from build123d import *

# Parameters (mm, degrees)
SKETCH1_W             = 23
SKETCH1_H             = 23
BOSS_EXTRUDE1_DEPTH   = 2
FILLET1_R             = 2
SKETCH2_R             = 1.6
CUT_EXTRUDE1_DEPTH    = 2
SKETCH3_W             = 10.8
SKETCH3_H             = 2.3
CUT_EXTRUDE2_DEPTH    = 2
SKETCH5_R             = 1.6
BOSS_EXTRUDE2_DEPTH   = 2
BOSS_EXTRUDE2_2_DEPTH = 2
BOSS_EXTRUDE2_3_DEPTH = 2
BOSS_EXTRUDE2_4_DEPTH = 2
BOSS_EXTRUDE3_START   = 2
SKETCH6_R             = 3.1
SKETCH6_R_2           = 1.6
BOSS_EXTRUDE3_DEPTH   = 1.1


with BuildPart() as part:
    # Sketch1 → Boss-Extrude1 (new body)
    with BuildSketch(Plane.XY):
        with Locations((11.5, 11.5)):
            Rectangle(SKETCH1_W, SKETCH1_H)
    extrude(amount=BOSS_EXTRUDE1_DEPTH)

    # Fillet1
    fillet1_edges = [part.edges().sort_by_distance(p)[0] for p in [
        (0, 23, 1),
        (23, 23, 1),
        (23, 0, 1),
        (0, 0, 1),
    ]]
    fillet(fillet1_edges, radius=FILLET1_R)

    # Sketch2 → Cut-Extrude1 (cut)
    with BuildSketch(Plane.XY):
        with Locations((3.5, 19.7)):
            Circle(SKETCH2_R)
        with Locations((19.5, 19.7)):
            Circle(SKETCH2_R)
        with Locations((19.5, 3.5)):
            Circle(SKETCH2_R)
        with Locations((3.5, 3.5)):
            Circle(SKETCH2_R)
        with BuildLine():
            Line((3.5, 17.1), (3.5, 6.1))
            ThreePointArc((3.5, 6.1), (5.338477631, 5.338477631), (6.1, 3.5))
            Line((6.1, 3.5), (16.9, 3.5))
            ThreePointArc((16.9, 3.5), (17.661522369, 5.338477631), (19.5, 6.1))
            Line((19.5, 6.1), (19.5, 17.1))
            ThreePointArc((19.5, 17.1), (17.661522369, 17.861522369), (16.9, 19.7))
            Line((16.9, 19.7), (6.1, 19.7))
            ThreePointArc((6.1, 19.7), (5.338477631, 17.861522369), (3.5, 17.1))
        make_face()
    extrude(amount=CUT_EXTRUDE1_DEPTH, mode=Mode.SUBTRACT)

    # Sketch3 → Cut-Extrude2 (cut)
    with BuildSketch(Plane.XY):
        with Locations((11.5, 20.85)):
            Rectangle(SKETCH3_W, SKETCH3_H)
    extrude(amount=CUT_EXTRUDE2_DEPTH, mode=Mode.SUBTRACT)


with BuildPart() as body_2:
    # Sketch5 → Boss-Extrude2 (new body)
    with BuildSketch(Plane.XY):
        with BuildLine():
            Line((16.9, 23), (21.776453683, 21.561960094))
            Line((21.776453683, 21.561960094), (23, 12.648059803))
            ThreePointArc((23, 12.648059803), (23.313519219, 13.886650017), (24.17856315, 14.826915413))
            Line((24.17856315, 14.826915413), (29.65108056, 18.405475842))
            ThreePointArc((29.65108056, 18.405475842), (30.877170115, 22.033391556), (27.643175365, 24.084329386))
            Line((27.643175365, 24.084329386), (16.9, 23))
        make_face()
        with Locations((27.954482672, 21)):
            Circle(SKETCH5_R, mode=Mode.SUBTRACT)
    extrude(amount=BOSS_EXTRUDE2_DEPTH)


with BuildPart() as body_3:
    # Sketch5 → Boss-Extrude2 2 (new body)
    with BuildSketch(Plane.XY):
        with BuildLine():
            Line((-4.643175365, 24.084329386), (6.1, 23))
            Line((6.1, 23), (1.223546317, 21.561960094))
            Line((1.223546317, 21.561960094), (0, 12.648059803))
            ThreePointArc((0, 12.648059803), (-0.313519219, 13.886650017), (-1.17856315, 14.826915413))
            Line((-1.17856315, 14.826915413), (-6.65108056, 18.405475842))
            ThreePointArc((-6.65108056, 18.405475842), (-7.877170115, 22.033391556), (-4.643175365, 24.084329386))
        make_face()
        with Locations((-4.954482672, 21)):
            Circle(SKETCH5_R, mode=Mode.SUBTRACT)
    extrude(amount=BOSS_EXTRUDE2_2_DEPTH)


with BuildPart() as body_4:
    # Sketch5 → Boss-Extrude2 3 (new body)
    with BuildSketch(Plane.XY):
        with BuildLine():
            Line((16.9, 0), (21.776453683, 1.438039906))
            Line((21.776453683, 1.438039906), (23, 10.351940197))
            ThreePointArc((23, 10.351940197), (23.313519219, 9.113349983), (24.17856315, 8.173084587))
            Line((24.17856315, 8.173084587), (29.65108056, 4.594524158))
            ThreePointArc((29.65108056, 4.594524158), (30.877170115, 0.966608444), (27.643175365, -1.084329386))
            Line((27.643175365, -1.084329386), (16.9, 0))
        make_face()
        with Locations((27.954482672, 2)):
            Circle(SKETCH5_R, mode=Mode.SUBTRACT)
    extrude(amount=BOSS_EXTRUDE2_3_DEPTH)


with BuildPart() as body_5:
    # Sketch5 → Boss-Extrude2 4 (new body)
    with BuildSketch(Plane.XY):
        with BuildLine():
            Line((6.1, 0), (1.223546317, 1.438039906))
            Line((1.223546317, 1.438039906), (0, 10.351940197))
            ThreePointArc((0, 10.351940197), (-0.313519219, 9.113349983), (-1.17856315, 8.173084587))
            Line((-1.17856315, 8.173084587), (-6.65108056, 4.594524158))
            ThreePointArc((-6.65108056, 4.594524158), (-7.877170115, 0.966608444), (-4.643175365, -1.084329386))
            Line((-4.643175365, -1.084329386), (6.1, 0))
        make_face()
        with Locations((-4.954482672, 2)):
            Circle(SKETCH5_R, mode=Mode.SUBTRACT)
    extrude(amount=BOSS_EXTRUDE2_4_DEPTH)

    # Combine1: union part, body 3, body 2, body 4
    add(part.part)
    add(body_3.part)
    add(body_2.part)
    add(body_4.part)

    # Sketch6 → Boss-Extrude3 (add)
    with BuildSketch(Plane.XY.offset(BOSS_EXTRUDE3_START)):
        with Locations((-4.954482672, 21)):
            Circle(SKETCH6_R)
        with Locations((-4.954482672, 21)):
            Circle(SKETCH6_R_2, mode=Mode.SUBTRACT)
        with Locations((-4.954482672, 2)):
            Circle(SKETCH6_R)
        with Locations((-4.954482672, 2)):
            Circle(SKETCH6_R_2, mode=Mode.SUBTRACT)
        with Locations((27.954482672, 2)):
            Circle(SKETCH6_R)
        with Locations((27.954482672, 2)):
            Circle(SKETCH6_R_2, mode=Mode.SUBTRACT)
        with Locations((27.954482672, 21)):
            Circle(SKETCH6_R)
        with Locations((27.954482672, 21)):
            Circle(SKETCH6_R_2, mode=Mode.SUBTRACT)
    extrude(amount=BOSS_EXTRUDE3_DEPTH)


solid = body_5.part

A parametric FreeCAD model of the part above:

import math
import FreeCAD as App
import Part
import Sketcher


def edges_at(feature, points):
    """Names of the edges that pass closest to the given points."""
    edges = feature.Shape.Edges
    near = lambda p: min(range(len(edges)), key=lambda i: edges[i].distToShape(Part.Vertex(*p))[0])
    return sorted({f"Edge{near(p) + 1}" for p in points})

doc = App.newDocument("Part")
body = doc.addObject("PartDesign::Body", "Body")

# Sketch on XY plane
sketch1 = doc.addObject("Sketcher::SketchObject", "Sketch")
body.addObject(sketch1)
sketch1.AttachmentSupport = (doc.XY_Plane, [""])
sketch1.MapMode = "FlatFace"
sketch1.addGeometry([
    Part.LineSegment(App.Vector(0, 23, 0), App.Vector(0, 0, 0)),
    Part.LineSegment(App.Vector(0, 0, 0), App.Vector(23, 0, 0)),
    Part.LineSegment(App.Vector(23, 0, 0), App.Vector(23, 23, 0)),
    Part.LineSegment(App.Vector(23, 23, 0), App.Vector(0, 23, 0)),
], False)
sketch1.addConstraint([
    Sketcher.Constraint("Coincident", 0, 2, 1, 1),
    Sketcher.Constraint("Coincident", 1, 2, 2, 1),
    Sketcher.Constraint("Coincident", 2, 2, 3, 1),
    Sketcher.Constraint("Coincident", 3, 2, 0, 1),
    Sketcher.Constraint("Vertical", 0),
    Sketcher.Constraint("Horizontal", 1),
    Sketcher.Constraint("Vertical", 2),
    Sketcher.Constraint("Horizontal", 3),
    Sketcher.Constraint("Coincident", 0, 2, -1, 1),
    Sketcher.Constraint("Equal", 3, 0),
    Sketcher.Constraint("DistanceX", 1, 1, 1, 2, 23.0),
])
pad1 = doc.addObject("PartDesign::Pad", "Pad")
body.addObject(pad1)
pad1.Profile = sketch1
pad1.Length = 2
doc.recompute()

fillet = doc.addObject("PartDesign::Fillet", "Fillet")
body.addObject(fillet)
fillet.Base = (pad1, edges_at(pad1, [
    (0, 23, 1),
    (23, 23, 1),
    (23, 0, 1),
    (0, 0, 1),
]))
fillet.Radius = 2

# Sketch on XY plane
sketch2 = doc.addObject("Sketcher::SketchObject", "Sketch001")
body.addObject(sketch2)
sketch2.AttachmentSupport = (doc.XY_Plane, [""])
sketch2.MapMode = "FlatFace"
sketch2.addGeometry([
    Part.Circle(App.Vector(3.5, 19.7, 0), App.Vector(0, 0, 1), 1.6),  # 0
    Part.Circle(App.Vector(19.5, 19.7, 0), App.Vector(0, 0, 1), 1.6),  # 1
    Part.Circle(App.Vector(19.5, 3.5, 0), App.Vector(0, 0, 1), 1.6),  # 2
    Part.Circle(App.Vector(3.5, 3.5, 0), App.Vector(0, 0, 1), 1.6),  # 3
    Part.LineSegment(App.Vector(3.5, 17.1, 0), App.Vector(3.5, 6.1, 0)),  # 4
    Part.ArcOfCircle(Part.Circle(App.Vector(3.5, 3.5, 0), App.Vector(0, 0, 1), 2.6), math.radians(0), math.radians(90)),  # 5
    Part.LineSegment(App.Vector(6.1, 3.5, 0), App.Vector(16.9, 3.5, 0)),  # 6
    Part.ArcOfCircle(Part.Circle(App.Vector(19.5, 3.5, 0), App.Vector(0, 0, 1), 2.6), math.radians(90), math.radians(180)),  # 7
    Part.LineSegment(App.Vector(19.5, 6.1, 0), App.Vector(19.5, 17.1, 0)),  # 8
    Part.ArcOfCircle(Part.Circle(App.Vector(19.5, 19.7, 0), App.Vector(0, 0, 1), 2.6), math.radians(180), math.radians(270)),  # 9
    Part.LineSegment(App.Vector(16.9, 19.7, 0), App.Vector(6.1, 19.7, 0)),  # 10
    Part.ArcOfCircle(Part.Circle(App.Vector(3.5, 19.7, 0), App.Vector(0, 0, 1), 2.6), math.radians(-90), math.radians(0)),  # 11
], False)
sketch2.addConstraint([
    Sketcher.Constraint("Coincident", 4, 2, 5, 2),
    Sketcher.Constraint("Coincident", 5, 1, 6, 1),
    Sketcher.Constraint("Coincident", 6, 2, 7, 2),
    Sketcher.Constraint("Coincident", 7, 1, 8, 1),
    Sketcher.Constraint("Coincident", 8, 2, 9, 2),
    Sketcher.Constraint("Coincident", 9, 1, 10, 1),
    Sketcher.Constraint("Coincident", 10, 2, 11, 2),
    Sketcher.Constraint("Coincident", 11, 1, 4, 1),
    Sketcher.Constraint("Vertical", 4),
    Sketcher.Constraint("Horizontal", 6),
    Sketcher.Constraint("Vertical", 8),
    Sketcher.Constraint("Horizontal", 10),
    Sketcher.Constraint("Coincident", 5, 3, 3, 3),
    Sketcher.Constraint("Coincident", 7, 3, 2, 3),
    Sketcher.Constraint("Coincident", 9, 3, 1, 3),
    Sketcher.Constraint("Coincident", 11, 3, 0, 3),
    Sketcher.Constraint("Equal", 0, 1),
    Sketcher.Constraint("Equal", 1, 2),
    Sketcher.Constraint("Equal", 2, 3),
    Sketcher.Constraint("Equal", 5, 7),
    Sketcher.Constraint("Equal", 7, 9),
    Sketcher.Constraint("Equal", 9, 11),
    Sketcher.Constraint("Horizontal", 0, 3, 1, 3),
    Sketcher.Constraint("Horizontal", 2, 3, 3, 3),
    Sketcher.Constraint("Horizontal", 7, 3, 5, 1),
    Sketcher.Constraint("Horizontal", 11, 3, 9, 1),
    Sketcher.Constraint("Vertical", 1, 3, 2, 3),
    Sketcher.Constraint("Vertical", 0, 3, 3, 3),
    Sketcher.Constraint("Vertical", 11, 3, 4, 2),
    Sketcher.Constraint("Vertical", 9, 3, 7, 1),
    Sketcher.Constraint("Diameter", 0, 3.2),
    Sketcher.Constraint("Radius", 5, 2.6),
    Sketcher.Constraint("DistanceY", 4, 2, 4, 1, 11.0),
    Sketcher.Constraint("DistanceX", 6, 1, 6, 2, 10.8),
    Sketcher.Constraint("DistanceX", -1, 1, 0, 3, 3.5),
    Sketcher.Constraint("DistanceY", -1, 1, 0, 3, 19.7),
])
pocket1 = doc.addObject("PartDesign::Pocket", "Pocket")
body.addObject(pocket1)
pocket1.Profile = sketch2
pocket1.Length = 2
pocket1.Reversed = True

# Sketch on XY plane
sketch3 = doc.addObject("Sketcher::SketchObject", "Sketch002")
body.addObject(sketch3)
sketch3.AttachmentSupport = (doc.XY_Plane, [""])
sketch3.MapMode = "FlatFace"
sketch3.addGeometry([
    Part.LineSegment(App.Vector(6.1, 22, 0), App.Vector(6.1, 19.7, 0)),
    Part.LineSegment(App.Vector(6.1, 19.7, 0), App.Vector(16.9, 19.7, 0)),
    Part.LineSegment(App.Vector(16.9, 19.7, 0), App.Vector(16.9, 22, 0)),
    Part.LineSegment(App.Vector(16.9, 22, 0), App.Vector(6.1, 22, 0)),
], False)
sketch3.addConstraint([
    Sketcher.Constraint("Coincident", 0, 2, 1, 1),
    Sketcher.Constraint("Coincident", 1, 2, 2, 1),
    Sketcher.Constraint("Coincident", 2, 2, 3, 1),
    Sketcher.Constraint("Coincident", 3, 2, 0, 1),
    Sketcher.Constraint("Vertical", 0),
    Sketcher.Constraint("Horizontal", 1),
    Sketcher.Constraint("Vertical", 2),
    Sketcher.Constraint("Horizontal", 3),
    Sketcher.Constraint("DistanceX", 1, 1, 1, 2, 10.8),
    Sketcher.Constraint("DistanceY", 0, 2, 0, 1, 2.3),
    Sketcher.Constraint("DistanceY", -1, 1, 2, 2, 22.0),
    Sketcher.Constraint("DistanceX", -1, 1, 0, 2, 6.1),
])
pocket2 = doc.addObject("PartDesign::Pocket", "Pocket001")
body.addObject(pocket2)
pocket2.Profile = sketch3
pocket2.Length = 2
pocket2.Reversed = True
body2 = doc.addObject("PartDesign::Body", "Body001")

# Sketch on XY plane
sketch4 = doc.addObject("Sketcher::SketchObject", "Sketch003")
body2.addObject(sketch4)
sketch4.AttachmentSupport = (doc.getObject("XY_Plane001"), [""])
sketch4.MapMode = "FlatFace"
sketch4.addGeometry([
    Part.LineSegment(App.Vector(16.9, 23, 0), App.Vector(21.8, 21.6, 0)),  # 0
    Part.LineSegment(App.Vector(21.8, 21.6, 0), App.Vector(23, 12.6, 0)),  # 1
    Part.ArcOfCircle(Part.Circle(App.Vector(25.6, 12.6, 0), App.Vector(0, 0, 1), 2.6), math.radians(123), math.radians(180)),  # 2
    Part.LineSegment(App.Vector(24.2, 14.8, 0), App.Vector(29.7, 18.4, 0)),  # 3
    Part.ArcOfCircle(Part.Circle(App.Vector(28, 21, 0), App.Vector(0, 0, 1), 3.1), math.radians(-57), math.radians(96)),  # 4
    Part.LineSegment(App.Vector(27.6, 24.1, 0), App.Vector(16.9, 23, 0)),  # 5
    Part.Circle(App.Vector(28, 21, 0), App.Vector(0, 0, 1), 1.6),  # 6
], False)
sketch4.addConstraint([
    Sketcher.Constraint("Coincident", 0, 2, 1, 1),
    Sketcher.Constraint("Coincident", 1, 2, 2, 2),
    Sketcher.Constraint("Tangent", 2, 1, 3, 1),
    Sketcher.Constraint("Tangent", 3, 2, 4, 1),
    Sketcher.Constraint("Tangent", 4, 2, 5, 1),
    Sketcher.Constraint("Coincident", 5, 2, 0, 1),
    Sketcher.Constraint("Coincident", 6, 3, 4, 3),
    Sketcher.Constraint("Horizontal", 2, 3, 1, 2),
    Sketcher.Constraint("Diameter", 6, 3.2),
    Sketcher.Constraint("Radius", 4, 3.1),
    Sketcher.Constraint("DistanceY", -1, 1, 4, 3, 21.0),
    Sketcher.Constraint("DistanceX", -1, 1, 1, 2, 23.0),
    Sketcher.Constraint("DistanceY", -1, 1, 5, 2, 23.0),
    Sketcher.Constraint("DistanceX", -1, 1, 5, 2, 16.9),
    Sketcher.Constraint("Radius", 2, 2.603349),
    Sketcher.Constraint("DistanceY", 2, 3, 0, 2, 8.9139),
    Sketcher.Constraint("Distance", 0, 5.084069),
    Sketcher.Constraint("Distance", 5, 10.797758),
    Sketcher.Constraint("DistanceY", -1, 1, 2, 3, 12.64806),
])
pad2 = doc.addObject("PartDesign::Pad", "Pad001")
body2.addObject(pad2)
pad2.Profile = sketch4
pad2.Length = 2
body3 = doc.addObject("PartDesign::Body", "Body002")

# Sketch on XY plane
sketch5 = doc.addObject("Sketcher::SketchObject", "Sketch004")
body3.addObject(sketch5)
sketch5.AttachmentSupport = (doc.getObject("XY_Plane002"), [""])
sketch5.MapMode = "FlatFace"
sketch5.addGeometry([
    Part.LineSegment(App.Vector(6.1, 23, 0), App.Vector(-4.6, 24.1, 0)),  # 0
    Part.ArcOfCircle(Part.Circle(App.Vector(-5, 21, 0), App.Vector(0, 0, 1), 3.1), math.radians(84), math.radians(237)),  # 1
    Part.LineSegment(App.Vector(-6.7, 18.4, 0), App.Vector(-1.2, 14.8, 0)),  # 2
    Part.ArcOfCircle(Part.Circle(App.Vector(-2.6, 12.6, 0), App.Vector(0, 0, 1), 2.6), math.radians(0), math.radians(57)),  # 3
    Part.LineSegment(App.Vector(0, 12.6, 0), App.Vector(1.2, 21.6, 0)),  # 4
    Part.LineSegment(App.Vector(1.2, 21.6, 0), App.Vector(6.1, 23, 0)),  # 5
    Part.Circle(App.Vector(-5, 21, 0), App.Vector(0, 0, 1), 1.6),  # 6
], False)
sketch5.addConstraint([
    Sketcher.Constraint("Tangent", 0, 2, 1, 1),
    Sketcher.Constraint("Tangent", 1, 2, 2, 1),
    Sketcher.Constraint("Tangent", 2, 2, 3, 2),
    Sketcher.Constraint("Coincident", 3, 1, 4, 1),
    Sketcher.Constraint("Coincident", 4, 2, 5, 1),
    Sketcher.Constraint("Coincident", 5, 2, 0, 1),
    Sketcher.Constraint("Coincident", 6, 3, 1, 3),
    Sketcher.Constraint("PointOnObject", 3, 1, -2),
    Sketcher.Constraint("Diameter", 6, 3.2),
    Sketcher.Constraint("Radius", 1, 3.1),
    Sketcher.Constraint("DistanceY", -1, 1, 1, 3, 21.0),
    Sketcher.Constraint("DistanceY", -1, 1, 5, 2, 23.0),
    Sketcher.Constraint("DistanceX", -1, 1, 5, 2, 6.1),
    Sketcher.Constraint("Radius", 3, 2.603349),
    Sketcher.Constraint("Distance", 0, 10.797758),
    Sketcher.Constraint("Distance", 5, 5.084069),
    Sketcher.Constraint("DistanceY", -1, 1, 3, 3, 12.64806),
    Sketcher.Constraint("DistanceY", -1, 1, 3, 1, 12.64806),
    Sketcher.Constraint("DistanceY", -1, 1, 4, 2, 21.56196),
])
pad3 = doc.addObject("PartDesign::Pad", "Pad002")
body3.addObject(pad3)
pad3.Profile = sketch5
pad3.Length = 2
body4 = doc.addObject("PartDesign::Body", "Body003")

# Sketch on XY plane
sketch6 = doc.addObject("Sketcher::SketchObject", "Sketch005")
body4.addObject(sketch6)
sketch6.AttachmentSupport = (doc.getObject("XY_Plane003"), [""])
sketch6.MapMode = "FlatFace"
sketch6.addGeometry([
    Part.LineSegment(App.Vector(21.8, 1.4, 0), App.Vector(16.9, 0, 0)),  # 0
    Part.LineSegment(App.Vector(16.9, 0, 0), App.Vector(27.6, -1.1, 0)),  # 1
    Part.ArcOfCircle(Part.Circle(App.Vector(28, 2, 0), App.Vector(0, 0, 1), 3.1), math.radians(-96), math.radians(57)),  # 2
    Part.LineSegment(App.Vector(29.7, 4.6, 0), App.Vector(24.2, 8.2, 0)),  # 3
    Part.ArcOfCircle(Part.Circle(App.Vector(25.6, 10.4, 0), App.Vector(0, 0, 1), 2.6), math.radians(180), math.radians(237)),  # 4
    Part.LineSegment(App.Vector(23, 10.4, 0), App.Vector(21.8, 1.4, 0)),  # 5
    Part.Circle(App.Vector(28, 2, 0), App.Vector(0, 0, 1), 1.6),  # 6
], False)
sketch6.addConstraint([
    Sketcher.Constraint("Coincident", 0, 2, 1, 1),
    Sketcher.Constraint("Tangent", 1, 2, 2, 1),
    Sketcher.Constraint("Tangent", 2, 2, 3, 1),
    Sketcher.Constraint("Tangent", 3, 2, 4, 2),
    Sketcher.Constraint("Coincident", 4, 1, 5, 1),
    Sketcher.Constraint("Coincident", 5, 2, 0, 1),
    Sketcher.Constraint("Coincident", 6, 3, 2, 3),
    Sketcher.Constraint("PointOnObject", 0, 2, -1),
    Sketcher.Constraint("Diameter", 6, 3.2),
    Sketcher.Constraint("Radius", 2, 3.1),
    Sketcher.Constraint("DistanceY", -1, 1, 2, 3, 2.0),
    Sketcher.Constraint("DistanceX", -1, 1, 4, 1, 23.0),
    Sketcher.Constraint("DistanceX", -1, 1, 0, 2, 16.9),
    Sketcher.Constraint("Radius", 4, 2.603349),
    Sketcher.Constraint("Distance", 0, 5.084069),
    Sketcher.Constraint("Distance", 1, 10.797758),
    Sketcher.Constraint("DistanceY", -1, 1, 4, 3, 10.35194),
    Sketcher.Constraint("DistanceY", -1, 1, 4, 1, 10.35194),
    Sketcher.Constraint("DistanceY", -1, 1, 5, 2, 1.43804),
])
pad4 = doc.addObject("PartDesign::Pad", "Pad003")
body4.addObject(pad4)
pad4.Profile = sketch6
pad4.Length = 2
body5 = doc.addObject("PartDesign::Body", "Body004")

# Sketch on XY plane
sketch7 = doc.addObject("Sketcher::SketchObject", "Sketch006")
body5.addObject(sketch7)
sketch7.AttachmentSupport = (doc.getObject("XY_Plane004"), [""])
sketch7.MapMode = "FlatFace"
sketch7.addGeometry([
    Part.LineSegment(App.Vector(6.1, 0, 0), App.Vector(1.2, 1.4, 0)),  # 0
    Part.LineSegment(App.Vector(1.2, 1.4, 0), App.Vector(0, 10.4, 0)),  # 1
    Part.ArcOfCircle(Part.Circle(App.Vector(-2.6, 10.4, 0), App.Vector(0, 0, 1), 2.6), math.radians(-57), math.radians(0)),  # 2
    Part.LineSegment(App.Vector(-1.2, 8.2, 0), App.Vector(-6.7, 4.6, 0)),  # 3
    Part.ArcOfCircle(Part.Circle(App.Vector(-5, 2, 0), App.Vector(0, 0, 1), 3.1), math.radians(123), math.radians(276)),  # 4
    Part.LineSegment(App.Vector(-4.6, -1.1, 0), App.Vector(6.1, 0, 0)),  # 5
    Part.Circle(App.Vector(-5, 2, 0), App.Vector(0, 0, 1), 1.6),  # 6
], False)
sketch7.addConstraint([
    Sketcher.Constraint("Coincident", 0, 2, 1, 1),
    Sketcher.Constraint("Coincident", 1, 2, 2, 2),
    Sketcher.Constraint("Tangent", 2, 1, 3, 1),
    Sketcher.Constraint("Tangent", 3, 2, 4, 1),
    Sketcher.Constraint("Tangent", 4, 2, 5, 1),
    Sketcher.Constraint("Coincident", 5, 2, 0, 1),
    Sketcher.Constraint("Coincident", 6, 3, 4, 3),
    Sketcher.Constraint("PointOnObject", 1, 2, -2),
    Sketcher.Constraint("PointOnObject", 5, 2, -1),
    Sketcher.Constraint("Horizontal", 2, 3, 1, 2),
    Sketcher.Constraint("Diameter", 6, 3.2),
    Sketcher.Constraint("Radius", 4, 3.1),
    Sketcher.Constraint("DistanceY", -1, 1, 4, 3, 2.0),
    Sketcher.Constraint("DistanceX", -1, 1, 5, 2, 6.1),
    Sketcher.Constraint("Radius", 2, 2.603349),
    Sketcher.Constraint("DistanceY", 0, 2, 2, 3, 8.9139),
    Sketcher.Constraint("Distance", 0, 5.084069),
    Sketcher.Constraint("Distance", 5, 10.797758),
    Sketcher.Constraint("DistanceY", -1, 1, 2, 3, 10.35194),
])
pad5 = doc.addObject("PartDesign::Pad", "Pad004")
body5.addObject(pad5)
pad5.Profile = sketch7
pad5.Length = 2
doc.recompute()

boolean = doc.addObject("PartDesign::Boolean", "Boolean")
body5.addObject(boolean)
boolean.Type = "Fuse"
boolean.addObjects([body])
doc.recompute()

boolean2 = doc.addObject("PartDesign::Boolean", "Boolean001")
body5.addObject(boolean2)
boolean2.Type = "Fuse"
boolean2.addObjects([body3])
doc.recompute()

boolean3 = doc.addObject("PartDesign::Boolean", "Boolean002")
body5.addObject(boolean3)
boolean3.Type = "Fuse"
boolean3.addObjects([body2])
doc.recompute()

boolean4 = doc.addObject("PartDesign::Boolean", "Boolean003")
body5.addObject(boolean4)
boolean4.Type = "Fuse"
boolean4.addObjects([body4])

# Sketch on XY plane
sketch8 = doc.addObject("Sketcher::SketchObject", "Sketch007")
body5.addObject(sketch8)
sketch8.AttachmentSupport = (doc.getObject("XY_Plane004"), [""])
sketch8.MapMode = "FlatFace"
sketch8.AttachmentOffset = App.Placement(App.Vector(0, 0, 2), App.Rotation())
sketch8.addGeometry([
    Part.Circle(App.Vector(-5, 21, 0), App.Vector(0, 0, 1), 3.1),  # 0
    Part.Circle(App.Vector(-5, 21, 0), App.Vector(0, 0, 1), 1.6),  # 1
    Part.Circle(App.Vector(-5, 2, 0), App.Vector(0, 0, 1), 3.1),  # 2
    Part.Circle(App.Vector(-5, 2, 0), App.Vector(0, 0, 1), 1.6),  # 3
    Part.Circle(App.Vector(28, 2, 0), App.Vector(0, 0, 1), 3.1),  # 4
    Part.Circle(App.Vector(28, 2, 0), App.Vector(0, 0, 1), 1.6),  # 5
    Part.Circle(App.Vector(28, 21, 0), App.Vector(0, 0, 1), 3.1),  # 6
    Part.Circle(App.Vector(28, 21, 0), App.Vector(0, 0, 1), 1.6),  # 7
], False)
sketch8.addConstraint([
    Sketcher.Constraint("Coincident", 1, 3, 0, 3),
    Sketcher.Constraint("Coincident", 3, 3, 2, 3),
    Sketcher.Constraint("Coincident", 5, 3, 4, 3),
    Sketcher.Constraint("Coincident", 7, 3, 6, 3),
    Sketcher.Constraint("Equal", 0, 2),
    Sketcher.Constraint("Equal", 1, 3),
    Sketcher.Constraint("Equal", 2, 4),
    Sketcher.Constraint("Equal", 3, 5),
    Sketcher.Constraint("Equal", 4, 6),
    Sketcher.Constraint("Equal", 5, 7),
    Sketcher.Constraint("Horizontal", 3, 3, 4, 3),
    Sketcher.Constraint("Horizontal", 1, 3, 6, 3),
    Sketcher.Constraint("Vertical", 1, 3, 2, 3),
    Sketcher.Constraint("Vertical", 5, 3, 6, 3),
    Sketcher.Constraint("Diameter", 0, 6.2),
    Sketcher.Constraint("Diameter", 1, 3.2),
    Sketcher.Constraint("DistanceY", -1, 1, 0, 3, 21.0),
    Sketcher.Constraint("DistanceY", -1, 1, 2, 3, 2.0),
    Sketcher.Constraint("DistanceX", 0, 3, -1, 1, 4.954483),
    Sketcher.Constraint("DistanceX", -1, 1, 4, 3, 27.954483),
])
pad6 = doc.addObject("PartDesign::Pad", "Pad005")
body5.addObject(pad6)
pad6.Profile = sketch8
pad6.Length = 1.1

doc.recompute()
